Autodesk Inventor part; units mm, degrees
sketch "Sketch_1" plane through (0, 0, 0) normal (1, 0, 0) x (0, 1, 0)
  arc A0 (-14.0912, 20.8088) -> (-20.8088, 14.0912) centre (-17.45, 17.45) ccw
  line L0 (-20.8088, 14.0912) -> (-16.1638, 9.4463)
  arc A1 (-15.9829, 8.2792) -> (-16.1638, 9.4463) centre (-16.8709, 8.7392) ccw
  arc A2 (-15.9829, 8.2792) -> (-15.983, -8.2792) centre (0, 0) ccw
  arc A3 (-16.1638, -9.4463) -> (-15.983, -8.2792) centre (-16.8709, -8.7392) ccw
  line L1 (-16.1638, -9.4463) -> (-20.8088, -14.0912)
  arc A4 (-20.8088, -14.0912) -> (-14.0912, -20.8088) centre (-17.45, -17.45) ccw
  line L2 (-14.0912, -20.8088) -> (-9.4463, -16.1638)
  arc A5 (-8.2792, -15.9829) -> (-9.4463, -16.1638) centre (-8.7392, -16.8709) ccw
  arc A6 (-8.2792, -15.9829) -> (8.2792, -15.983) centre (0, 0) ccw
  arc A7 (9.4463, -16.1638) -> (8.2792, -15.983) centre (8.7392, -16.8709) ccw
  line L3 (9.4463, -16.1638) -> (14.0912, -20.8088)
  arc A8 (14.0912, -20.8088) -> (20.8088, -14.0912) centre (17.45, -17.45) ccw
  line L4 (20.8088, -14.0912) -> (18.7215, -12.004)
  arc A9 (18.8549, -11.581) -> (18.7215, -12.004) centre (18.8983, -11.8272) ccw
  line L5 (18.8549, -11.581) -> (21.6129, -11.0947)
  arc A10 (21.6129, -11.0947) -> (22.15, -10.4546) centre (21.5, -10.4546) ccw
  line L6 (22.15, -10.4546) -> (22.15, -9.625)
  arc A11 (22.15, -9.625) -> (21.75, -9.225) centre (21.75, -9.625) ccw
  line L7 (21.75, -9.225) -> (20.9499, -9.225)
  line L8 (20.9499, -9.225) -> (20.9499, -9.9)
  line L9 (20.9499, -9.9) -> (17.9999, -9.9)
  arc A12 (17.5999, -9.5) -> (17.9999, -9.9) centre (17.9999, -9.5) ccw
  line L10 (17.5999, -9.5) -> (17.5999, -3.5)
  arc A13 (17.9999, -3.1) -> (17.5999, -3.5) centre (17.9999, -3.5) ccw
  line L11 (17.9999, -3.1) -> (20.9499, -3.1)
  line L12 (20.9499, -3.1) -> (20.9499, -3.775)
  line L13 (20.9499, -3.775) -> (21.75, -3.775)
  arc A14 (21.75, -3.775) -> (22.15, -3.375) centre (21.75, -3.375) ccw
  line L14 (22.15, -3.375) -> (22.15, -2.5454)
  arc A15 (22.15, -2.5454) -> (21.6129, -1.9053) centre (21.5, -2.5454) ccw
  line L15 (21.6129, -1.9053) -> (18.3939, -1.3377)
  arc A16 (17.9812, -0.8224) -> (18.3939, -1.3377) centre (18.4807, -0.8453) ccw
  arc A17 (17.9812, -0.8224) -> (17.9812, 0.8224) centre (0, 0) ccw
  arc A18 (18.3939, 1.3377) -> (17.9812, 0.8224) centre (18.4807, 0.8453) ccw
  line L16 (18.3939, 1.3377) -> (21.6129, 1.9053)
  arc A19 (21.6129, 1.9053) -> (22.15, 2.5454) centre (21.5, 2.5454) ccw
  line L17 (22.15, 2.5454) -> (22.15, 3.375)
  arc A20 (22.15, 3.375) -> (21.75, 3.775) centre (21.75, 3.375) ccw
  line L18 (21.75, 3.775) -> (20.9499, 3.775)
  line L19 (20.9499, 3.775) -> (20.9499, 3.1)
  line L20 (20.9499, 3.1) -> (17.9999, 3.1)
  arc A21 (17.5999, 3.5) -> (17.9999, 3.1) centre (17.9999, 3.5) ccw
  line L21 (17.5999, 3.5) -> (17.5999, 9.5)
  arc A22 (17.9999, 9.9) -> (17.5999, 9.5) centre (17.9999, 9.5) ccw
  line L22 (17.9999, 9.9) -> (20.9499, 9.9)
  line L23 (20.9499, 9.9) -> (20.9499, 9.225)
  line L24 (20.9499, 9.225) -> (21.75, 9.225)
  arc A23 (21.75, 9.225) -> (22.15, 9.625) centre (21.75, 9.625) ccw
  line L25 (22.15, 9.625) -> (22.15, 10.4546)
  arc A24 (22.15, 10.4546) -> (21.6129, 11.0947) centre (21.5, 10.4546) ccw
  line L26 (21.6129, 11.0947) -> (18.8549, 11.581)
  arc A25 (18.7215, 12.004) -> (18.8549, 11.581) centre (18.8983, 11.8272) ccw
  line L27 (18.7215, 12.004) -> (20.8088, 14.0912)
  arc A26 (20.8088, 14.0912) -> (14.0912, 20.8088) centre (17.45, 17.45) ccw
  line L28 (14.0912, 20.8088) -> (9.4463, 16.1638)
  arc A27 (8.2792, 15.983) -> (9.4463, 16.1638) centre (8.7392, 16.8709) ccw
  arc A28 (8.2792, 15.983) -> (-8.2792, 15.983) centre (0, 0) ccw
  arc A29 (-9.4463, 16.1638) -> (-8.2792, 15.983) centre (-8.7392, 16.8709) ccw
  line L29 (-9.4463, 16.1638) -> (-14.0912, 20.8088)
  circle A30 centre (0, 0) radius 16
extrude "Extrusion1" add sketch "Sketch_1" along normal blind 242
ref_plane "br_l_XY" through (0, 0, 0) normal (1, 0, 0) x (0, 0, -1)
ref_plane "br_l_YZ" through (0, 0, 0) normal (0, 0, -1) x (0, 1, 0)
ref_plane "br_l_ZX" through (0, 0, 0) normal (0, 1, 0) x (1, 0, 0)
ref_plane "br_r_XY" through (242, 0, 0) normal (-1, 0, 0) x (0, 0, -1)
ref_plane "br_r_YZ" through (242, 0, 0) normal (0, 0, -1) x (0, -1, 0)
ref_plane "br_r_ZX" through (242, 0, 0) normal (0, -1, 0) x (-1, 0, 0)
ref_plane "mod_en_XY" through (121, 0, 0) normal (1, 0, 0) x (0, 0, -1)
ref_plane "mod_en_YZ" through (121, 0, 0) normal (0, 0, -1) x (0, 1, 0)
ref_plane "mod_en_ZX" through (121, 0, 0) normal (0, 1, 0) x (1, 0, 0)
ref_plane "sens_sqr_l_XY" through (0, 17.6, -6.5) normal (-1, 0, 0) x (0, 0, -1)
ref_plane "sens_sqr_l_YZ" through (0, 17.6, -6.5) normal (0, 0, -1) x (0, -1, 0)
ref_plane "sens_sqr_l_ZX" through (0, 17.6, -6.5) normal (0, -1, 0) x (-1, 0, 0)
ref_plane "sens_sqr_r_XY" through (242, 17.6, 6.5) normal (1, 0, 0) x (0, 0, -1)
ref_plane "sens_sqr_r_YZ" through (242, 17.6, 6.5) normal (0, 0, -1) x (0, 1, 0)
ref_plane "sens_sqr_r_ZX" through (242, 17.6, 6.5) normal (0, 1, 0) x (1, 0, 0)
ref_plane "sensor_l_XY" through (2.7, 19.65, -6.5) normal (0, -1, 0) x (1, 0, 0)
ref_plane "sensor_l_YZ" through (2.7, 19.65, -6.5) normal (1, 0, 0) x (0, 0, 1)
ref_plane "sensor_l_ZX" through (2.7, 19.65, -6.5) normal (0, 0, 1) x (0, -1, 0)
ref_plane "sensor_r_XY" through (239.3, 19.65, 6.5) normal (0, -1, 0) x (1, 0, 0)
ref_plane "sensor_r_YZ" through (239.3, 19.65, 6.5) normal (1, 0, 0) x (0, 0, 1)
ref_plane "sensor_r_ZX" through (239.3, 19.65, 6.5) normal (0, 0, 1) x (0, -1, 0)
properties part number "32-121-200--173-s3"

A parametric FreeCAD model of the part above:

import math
import FreeCAD as App
import Part
import Sketcher
from FreeCAD import Vector
Q = App.Units.Quantity

doc = App.newDocument("Part")
params = doc.addObject("Spreadsheet::Sheet", "Params")
for row, (alias, value) in enumerate([
    ("sketch1_diameter", "32 mm"),
    ("sketch1_radius", "1 mm"),
    ("sketch1_radius2", "18 mm"),
    ("sketch1_radius3", "0.4 mm"),
    ("sketch1_radius4", "0.5 mm"),
    ("pad1_length", "242 mm"),
], start=1):
    params.set(f"A{row}", alias)
    params.set(f"B{row}", "=" + value)
    params.setAlias(f"B{row}", alias)

body = doc.addObject("PartDesign::Body", "Body")

# Sketch on YZ plane
sketch1 = body.newObject("Sketcher::SketchObject", "Sketch")
sketch1.AttachmentSupport = (doc.getObject("YZ_Plane"), [""])
sketch1.MapMode = "FlatFace"
sketch1.addGeometry([
    Part.LineSegment(Vector(-9.4463, 16.1638, 0), Vector(-14.0912, 20.8088, 0)),  # 0
    Part.ArcOfCircle(Part.Circle(Vector(-17.45, 17.45, 0), Vector(0, 0, 1), 4.750061), math.radians(45), math.radians(225)),  # 1
    Part.LineSegment(Vector(-20.8088, 14.0912, 0), Vector(-16.1638, 9.4463, 0)),  # 2
    Part.ArcOfCircle(Part.Circle(Vector(-16.8709, 8.7392, 0), Vector(0, 0, 1), 1.000072), math.radians(-27.384971), math.radians(45)),  # 3
    Part.ArcOfCircle(Part.Circle(Vector(0, 0, 0), Vector(0, 0, 1), 18.00004), math.radians(152.61568), math.radians(207.384174)),  # 4
    Part.ArcOfCircle(Part.Circle(Vector(-16.8709, -8.7392, 0), Vector(0, 0, 1), 0.99999), math.radians(-45), math.radians(27.387606)),  # 5
    Part.LineSegment(Vector(-16.1638, -9.4463, 0), Vector(-20.8088, -14.0912, 0)),  # 6
    Part.ArcOfCircle(Part.Circle(Vector(-17.45, -17.45, 0), Vector(0, 0, 1), 4.750061), math.radians(135), math.radians(315)),  # 7
    Part.LineSegment(Vector(-14.0912, -20.8088, 0), Vector(-9.4463, -16.1638, 0)),  # 8
    Part.ArcOfCircle(Part.Circle(Vector(-8.7392, -16.8709, 0), Vector(0, 0, 1), 1.000072), math.radians(62.615029), math.radians(135)),  # 9
    Part.ArcOfCircle(Part.Circle(Vector(0, 0, 0), Vector(0, 0, 1), 18.00004), math.radians(-117.38432), math.radians(-62.615826)),  # 10
    Part.ArcOfCircle(Part.Circle(Vector(8.7392, -16.8709, 0), Vector(0, 0, 1), 0.99999), math.radians(45), math.radians(117.387606)),  # 11
    Part.LineSegment(Vector(9.4463, -16.1638, 0), Vector(14.0912, -20.8088, 0)),  # 12
    Part.ArcOfCircle(Part.Circle(Vector(17.45, -17.45, 0), Vector(0, 0, 1), 4.750061), math.radians(-135), math.radians(45)),  # 13
    Part.LineSegment(Vector(20.8088, -14.0912, 0), Vector(18.7215, -12.004, 0)),  # 14
    Part.ArcOfCircle(Part.Circle(Vector(18.8983, -11.8272, 0), Vector(0, 0, 1), 0.249996), math.radians(99.997359), math.radians(225)),  # 15
    Part.LineSegment(Vector(18.8549, -11.581, 0), Vector(21.6129, -11.0947, 0)),  # 16
    Part.ArcOfCircle(Part.Circle(Vector(21.5, -10.4546, 0), Vector(0, 0, 1), 0.64998), math.radians(-79.997127), math.radians(0)),  # 17
    Part.LineSegment(Vector(22.15, -10.4546, 0), Vector(22.15, -9.625, 0)),  # 18
    Part.ArcOfCircle(Part.Circle(Vector(21.75, -9.625, 0), Vector(0, 0, 1), 0.4), math.radians(0), math.radians(90)),  # 19
    Part.LineSegment(Vector(21.75, -9.225, 0), Vector(20.9499, -9.225, 0)),  # 20
    Part.LineSegment(Vector(20.9499, -9.225, 0), Vector(20.9499, -9.9, 0)),  # 21
    Part.LineSegment(Vector(20.9499, -9.9, 0), Vector(17.9999, -9.9, 0)),  # 22
    Part.ArcOfCircle(Part.Circle(Vector(17.9999, -9.5, 0), Vector(0, 0, 1), 0.4), math.radians(180), math.radians(270)),  # 23
    Part.LineSegment(Vector(17.5999, -9.5, 0), Vector(17.5999, -3.5, 0)),  # 24
    Part.ArcOfCircle(Part.Circle(Vector(17.9999, -3.5, 0), Vector(0, 0, 1), 0.4), math.radians(90), math.radians(180)),  # 25
    Part.LineSegment(Vector(17.9999, -3.1, 0), Vector(20.9499, -3.1, 0)),  # 26
    Part.LineSegment(Vector(20.9499, -3.1, 0), Vector(20.9499, -3.775, 0)),  # 27
    Part.LineSegment(Vector(20.9499, -3.775, 0), Vector(21.75, -3.775, 0)),  # 28
    Part.ArcOfCircle(Part.Circle(Vector(21.75, -3.375, 0), Vector(0, 0, 1), 0.4), math.radians(-90), math.radians(0)),  # 29
    Part.LineSegment(Vector(22.15, -3.375, 0), Vector(22.15, -2.5454, 0)),  # 30
    Part.ArcOfCircle(Part.Circle(Vector(21.5, -2.5454, 0), Vector(0, 0, 1), 0.65), math.radians(0), math.radians(79.997127)),  # 31
    Part.LineSegment(Vector(21.6129, -1.9053, 0), Vector(18.3939, -1.3377, 0)),  # 32
    Part.ArcOfCircle(Part.Circle(Vector(18.4807, -0.8453, 0), Vector(0, 0, 1), 0.500025), math.radians(177.375065), math.radians(260.002641)),  # 33
    Part.ArcOfCircle(Part.Circle(Vector(0, 0, 0), Vector(0, 0, 1), 17.999997), math.radians(-2.618693), math.radians(2.618693)),  # 34
    Part.ArcOfCircle(Part.Circle(Vector(18.4807, 0.8453, 0), Vector(0, 0, 1), 0.499992), math.radians(99.997359), math.radians(182.624935)),  # 35
    Part.LineSegment(Vector(18.3939, 1.3377, 0), Vector(21.6129, 1.9053, 0)),  # 36
    Part.ArcOfCircle(Part.Circle(Vector(21.5, 2.5454, 0), Vector(0, 0, 1), 0.64998), math.radians(-79.997127), math.radians(0)),  # 37
    Part.LineSegment(Vector(22.15, 2.5454, 0), Vector(22.15, 3.375, 0)),  # 38
    Part.ArcOfCircle(Part.Circle(Vector(21.75, 3.375, 0), Vector(0, 0, 1), 0.4), math.radians(0), math.radians(90)),  # 39
    Part.LineSegment(Vector(21.75, 3.775, 0), Vector(20.9499, 3.775, 0)),  # 40
    Part.LineSegment(Vector(20.9499, 3.775, 0), Vector(20.9499, 3.1, 0)),  # 41
    Part.LineSegment(Vector(20.9499, 3.1, 0), Vector(17.9999, 3.1, 0)),  # 42
    Part.ArcOfCircle(Part.Circle(Vector(17.9999, 3.5, 0), Vector(0, 0, 1), 0.4), math.radians(180), math.radians(270)),  # 43
    Part.LineSegment(Vector(17.5999, 3.5, 0), Vector(17.5999, 9.5, 0)),  # 44
    Part.ArcOfCircle(Part.Circle(Vector(17.9999, 9.5, 0), Vector(0, 0, 1), 0.4), math.radians(90), math.radians(180)),  # 45
    Part.LineSegment(Vector(17.9999, 9.9, 0), Vector(20.9499, 9.9, 0)),  # 46
    Part.LineSegment(Vector(20.9499, 9.9, 0), Vector(20.9499, 9.225, 0)),  # 47
    Part.LineSegment(Vector(20.9499, 9.225, 0), Vector(21.75, 9.225, 0)),  # 48
    Part.ArcOfCircle(Part.Circle(Vector(21.75, 9.625, 0), Vector(0, 0, 1), 0.4), math.radians(-90), math.radians(0)),  # 49
    Part.LineSegment(Vector(22.15, 9.625, 0), Vector(22.15, 10.4546, 0)),  # 50
    Part.ArcOfCircle(Part.Circle(Vector(21.5, 10.4546, 0), Vector(0, 0, 1), 0.65), math.radians(0), math.radians(79.997127)),  # 51
    Part.LineSegment(Vector(21.6129, 11.0947, 0), Vector(18.8549, 11.581, 0)),  # 52
    Part.ArcOfCircle(Part.Circle(Vector(18.8983, 11.8272, 0), Vector(0, 0, 1), 0.250033), math.radians(135), math.radians(260.002641)),  # 53
    Part.LineSegment(Vector(18.7215, 12.004, 0), Vector(20.8088, 14.0912, 0)),  # 54
    Part.ArcOfCircle(Part.Circle(Vector(17.45, 17.45, 0), Vector(0, 0, 1), 4.750061), math.radians(-45), math.radians(135)),  # 55
    Part.LineSegment(Vector(14.0912, 20.8088, 0), Vector(9.4463, 16.1638, 0)),  # 56
    Part.ArcOfCircle(Part.Circle(Vector(8.7392, 16.8709, 0), Vector(0, 0, 1), 0.999983), math.radians(-117.387606), math.radians(-45)),  # 57
    Part.ArcOfCircle(Part.Circle(Vector(0, 0, 0), Vector(0, 0, 1), 18.00004), math.radians(62.615826), math.radians(117.384174)),  # 58
    Part.ArcOfCircle(Part.Circle(Vector(-8.7392, 16.8709, 0), Vector(0, 0, 1), 0.99999), math.radians(-135), math.radians(-62.612394)),  # 59
    Part.Circle(Vector(0, 0, 0), Vector(0, 0, 1), 16),  # 60
], False)
sketch1.addConstraint([
    Sketcher.Constraint("Tangent", 0, 2, 1, 1),
    Sketcher.Constraint("Tangent", 1, 2, 2, 1),
    Sketcher.Constraint("Tangent", 2, 2, 3, 2),
    Sketcher.Constraint("Tangent", 3, 1, 4, 1),
    Sketcher.Constraint("Tangent", 4, 2, 5, 2),
    Sketcher.Constraint("Tangent", 5, 1, 6, 1),
    Sketcher.Constraint("Tangent", 6, 2, 7, 1),
    Sketcher.Constraint("Tangent", 7, 2, 8, 1),
    Sketcher.Constraint("Tangent", 8, 2, 9, 2),
    Sketcher.Constraint("Tangent", 9, 1, 10, 1),
    Sketcher.Constraint("Tangent", 10, 2, 11, 2),
    Sketcher.Constraint("Tangent", 11, 1, 12, 1),
    Sketcher.Constraint("Tangent", 12, 2, 13, 1),
    Sketcher.Constraint("Tangent", 13, 2, 14, 1),
    Sketcher.Constraint("Tangent", 14, 2, 15, 2),
    Sketcher.Constraint("Tangent", 15, 1, 16, 1),
    Sketcher.Constraint("Tangent", 16, 2, 17, 1),
    Sketcher.Constraint("Tangent", 17, 2, 18, 1),
    Sketcher.Constraint("Tangent", 18, 2, 19, 1),
    Sketcher.Constraint("Tangent", 19, 2, 20, 1),
    Sketcher.Constraint("Coincident", 20, 2, 21, 1),
    Sketcher.Constraint("Coincident", 21, 2, 22, 1),
    Sketcher.Constraint("Tangent", 22, 2, 23, 2),
    Sketcher.Constraint("Tangent", 23, 1, 24, 1),
    Sketcher.Constraint("Tangent", 24, 2, 25, 2),
    Sketcher.Constraint("Tangent", 25, 1, 26, 1),
    Sketcher.Constraint("Coincident", 26, 2, 27, 1),
    Sketcher.Constraint("Coincident", 27, 2, 28, 1),
    Sketcher.Constraint("Tangent", 28, 2, 29, 1),
    Sketcher.Constraint("Tangent", 29, 2, 30, 1),
    Sketcher.Constraint("Tangent", 30, 2, 31, 1),
    Sketcher.Constraint("Tangent", 31, 2, 32, 1),
    Sketcher.Constraint("Tangent", 32, 2, 33, 2),
    Sketcher.Constraint("Tangent", 33, 1, 34, 1),
    Sketcher.Constraint("Tangent", 34, 2, 35, 2),
    Sketcher.Constraint("Tangent", 35, 1, 36, 1),
    Sketcher.Constraint("Tangent", 36, 2, 37, 1),
    Sketcher.Constraint("Tangent", 37, 2, 38, 1),
    Sketcher.Constraint("Tangent", 38, 2, 39, 1),
    Sketcher.Constraint("Tangent", 39, 2, 40, 1),
    Sketcher.Constraint("Coincident", 40, 2, 41, 1),
    Sketcher.Constraint("Coincident", 41, 2, 42, 1),
    Sketcher.Constraint("Tangent", 42, 2, 43, 2),
    Sketcher.Constraint("Tangent", 43, 1, 44, 1),
    Sketcher.Constraint("Tangent", 44, 2, 45, 2),
    Sketcher.Constraint("Tangent", 45, 1, 46, 1),
    Sketcher.Constraint("Coincident", 46, 2, 47, 1),
    Sketcher.Constraint("Coincident", 47, 2, 48, 1),
    Sketcher.Constraint("Tangent", 48, 2, 49, 1),
    Sketcher.Constraint("Tangent", 49, 2, 50, 1),
    Sketcher.Constraint("Tangent", 50, 2, 51, 1),
    Sketcher.Constraint("Tangent", 51, 2, 52, 1),
    Sketcher.Constraint("Tangent", 52, 2, 53, 2),
    Sketcher.Constraint("Tangent", 53, 1, 54, 1),
    Sketcher.Constraint("Tangent", 54, 2, 55, 1),
    Sketcher.Constraint("Tangent", 55, 2, 56, 1),
    Sketcher.Constraint("Tangent", 56, 2, 57, 2),
    Sketcher.Constraint("Tangent", 57, 1, 58, 1),
    Sketcher.Constraint("Tangent", 58, 2, 59, 2),
    Sketcher.Constraint("Tangent", 59, 1, 0, 1),
    Sketcher.Constraint("Vertical", 18),
    Sketcher.Constraint("Horizontal", 20),
    Sketcher.Constraint("Vertical", 21),
    Sketcher.Constraint("Horizontal", 22),
    Sketcher.Constraint("Vertical", 24),
    Sketcher.Constraint("Horizontal", 26),
    Sketcher.Constraint("Vertical", 27),
    Sketcher.Constraint("Horizontal", 28),
    Sketcher.Constraint("Vertical", 30),
    Sketcher.Constraint("Vertical", 38),
    Sketcher.Constraint("Horizontal", 40),
    Sketcher.Constraint("Vertical", 41),
    Sketcher.Constraint("Horizontal", 42),
    Sketcher.Constraint("Vertical", 44),
    Sketcher.Constraint("Horizontal", 46),
    Sketcher.Constraint("Vertical", 47),
    Sketcher.Constraint("Horizontal", 48),
    Sketcher.Constraint("Vertical", 50),
    Sketcher.Constraint("Coincident", 4, 3, -1, 1),
    Sketcher.Constraint("Coincident", 10, 3, -1, 1),
    Sketcher.Constraint("Coincident", 34, 3, -1, 1),
    Sketcher.Constraint("Coincident", 58, 3, -1, 1),
    Sketcher.Constraint("Coincident", 60, 3, -1, 1),
    Sketcher.Constraint("Equal", 3, 5),
    Sketcher.Constraint("Equal", 1, 7),
    Sketcher.Constraint("Equal", 5, 9),
    Sketcher.Constraint("Equal", 4, 10),
    Sketcher.Constraint("Equal", 9, 11),
    Sketcher.Constraint("Equal", 7, 13),
    Sketcher.Constraint("Equal", 19, 23),
    Sketcher.Constraint("Equal", 23, 25),
    Sketcher.Constraint("Equal", 25, 29),
    Sketcher.Constraint("Equal", 17, 31),
    Sketcher.Constraint("Equal", 10, 34),
    Sketcher.Constraint("Equal", 33, 35),
    Sketcher.Constraint("Equal", 31, 37),
    Sketcher.Constraint("Equal", 29, 39),
    Sketcher.Constraint("Equal", 39, 43),
    Sketcher.Constraint("Equal", 43, 45),
    Sketcher.Constraint("Equal", 45, 49),
    Sketcher.Constraint("Equal", 37, 51),
    Sketcher.Constraint("Equal", 15, 53),
    Sketcher.Constraint("Equal", 13, 55),
    Sketcher.Constraint("Equal", 11, 57),
    Sketcher.Constraint("Equal", 34, 58),
    Sketcher.Constraint("Equal", 57, 59),
    Sketcher.Constraint("Symmetric", 1, 3, 13, 3, -1, 1),
    Sketcher.Constraint("Symmetric", 7, 3, 55, 3, -1, 1),
    Sketcher.Constraint("Symmetric", 7, 3, 13, 3, -2),
    Sketcher.Constraint("Symmetric", 31, 3, 37, 3, -1),
    Sketcher.Constraint("Symmetric", 25, 3, 43, 3, -1),
    Sketcher.Constraint("Symmetric", 19, 3, 49, 3, -1),
    Sketcher.Constraint("Symmetric", 15, 3, 53, 3, -1),
    Sketcher.Constraint("Symmetric", 27, 2, 40, 2, -1),
    Sketcher.Constraint("Symmetric", 21, 2, 46, 2, -1),
    Sketcher.Constraint("Parallel", 0, 2),
    Sketcher.Constraint("Perpendicular", 2, 6),
    Sketcher.Constraint("Parallel", 6, 8),
    Sketcher.Constraint("Perpendicular", 8, 12),
    Sketcher.Constraint("Parallel", 12, 14),
    Sketcher.Constraint("Parallel", 16, 36),
    Sketcher.Constraint("Parallel", 32, 52),
    Sketcher.Constraint("Perpendicular", 14, 54),
    Sketcher.Constraint("Parallel", 54, 56),
    Sketcher.Constraint("Vertical", 19, 3, 29, 3),
    Sketcher.Constraint("Vertical", 33, 3, 35, 3),
    Sketcher.Constraint("Vertical", 21, 2, 26, 2),
    Sketcher.Constraint("Equal", 21, 27),
    Sketcher.Constraint("Equal", 18, 30),
    Sketcher.Constraint("Equal", 0, 2),
    Sketcher.Constraint("Diameter", 60, 32.0),
    Sketcher.Constraint("Radius", 3, 1.0),
    Sketcher.Constraint("Radius", 4, 18.0),
    Sketcher.Constraint("Radius", 19, 0.4),
    Sketcher.Constraint("Radius", 33, 0.5),
    Sketcher.Constraint("DistanceY", 24, 1, 24, 2, 6.0),
    Sketcher.Constraint("Angle", 16, Q("9.9998 deg")),
    Sketcher.Constraint("Radius", 1, 4.75),
    Sketcher.Constraint("Radius", 15, 0.25),
    Sketcher.Constraint("Radius", 17, 0.65),
    Sketcher.Constraint("DistanceX", 20, 2, 20, 1, 0.8),
    Sketcher.Constraint("DistanceX", -1, 1, 23, 3, 18.0),
    Sketcher.Constraint("DistanceX", 22, 2, 22, 1, 2.95),
    Sketcher.Constraint("DistanceY", 23, 3, -1, 1, 9.5),
    Sketcher.Constraint("DistanceY", 21, 2, 21, 1, 0.675),
    Sketcher.Constraint("DistanceX", 1, 3, -1, 1, 17.45),
    Sketcher.Constraint("DistanceY", 18, 1, 18, 2, 0.8296),
])
sketch1.setExpression("Constraints[130]", "Params.sketch1_diameter")
sketch1.setExpression("Constraints[131]", "Params.sketch1_radius")
sketch1.setExpression("Constraints[132]", "Params.sketch1_radius2")
sketch1.setExpression("Constraints[133]", "Params.sketch1_radius3")
sketch1.setExpression("Constraints[134]", "Params.sketch1_radius4")
pad1 = body.newObject("PartDesign::Pad", "Pad")
pad1.Profile = sketch1
pad1.setExpression("Length", "Params.pad1_length")

doc.recompute()
